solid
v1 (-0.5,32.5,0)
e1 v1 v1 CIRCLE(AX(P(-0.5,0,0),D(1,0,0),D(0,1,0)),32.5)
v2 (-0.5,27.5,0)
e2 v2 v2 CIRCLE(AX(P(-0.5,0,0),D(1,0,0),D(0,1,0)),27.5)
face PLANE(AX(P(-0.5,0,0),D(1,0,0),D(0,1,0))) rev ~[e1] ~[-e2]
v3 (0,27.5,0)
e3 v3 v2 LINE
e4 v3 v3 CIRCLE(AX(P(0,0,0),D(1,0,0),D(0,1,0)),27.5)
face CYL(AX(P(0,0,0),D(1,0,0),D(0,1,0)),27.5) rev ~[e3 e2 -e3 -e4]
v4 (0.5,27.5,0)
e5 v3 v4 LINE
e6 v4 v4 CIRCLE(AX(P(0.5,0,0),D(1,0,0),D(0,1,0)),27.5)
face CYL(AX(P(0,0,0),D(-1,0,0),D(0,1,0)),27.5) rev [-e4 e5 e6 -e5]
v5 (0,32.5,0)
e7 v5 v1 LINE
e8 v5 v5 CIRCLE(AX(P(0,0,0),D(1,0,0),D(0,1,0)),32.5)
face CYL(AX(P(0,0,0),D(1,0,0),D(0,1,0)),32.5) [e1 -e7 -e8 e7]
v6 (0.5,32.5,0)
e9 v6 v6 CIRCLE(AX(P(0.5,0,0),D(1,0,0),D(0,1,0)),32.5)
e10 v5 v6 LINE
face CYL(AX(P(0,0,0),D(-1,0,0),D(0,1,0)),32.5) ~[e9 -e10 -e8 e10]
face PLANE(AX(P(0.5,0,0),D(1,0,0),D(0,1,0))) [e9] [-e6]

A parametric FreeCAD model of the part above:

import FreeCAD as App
import Part
import Sketcher
from FreeCAD import Vector

doc = App.newDocument("Part")
body = doc.addObject("PartDesign::Body", "Body")

sketch1 = body.newObject("Sketcher::SketchObject", "Sketch")
sketch1.AttachmentSupport = (doc.getObject("YZ_Plane"), [""])
sketch1.MapMode = "FlatFace"
sketch1.addGeometry([
    Part.Circle(Vector(0, 0, 0), Vector(0, 0, 1), 32),
    Part.Circle(Vector(0, 0, 0), Vector(0, 0, 1), 28),
], False)
sketch1.addConstraint([
    Sketcher.Constraint("Coincident", 0, 3, -1, 1),
    Sketcher.Constraint("Coincident", 1, 3, -1, 1),
    Sketcher.Constraint("Diameter", 0, 65.0),
    Sketcher.Constraint("Diameter", 1, 55.0),
])
pad1 = body.newObject("PartDesign::Pad", "Pad")
pad1.Profile = sketch1
pad1.Length = 1
pad1.Midplane = True

doc.recompute()
